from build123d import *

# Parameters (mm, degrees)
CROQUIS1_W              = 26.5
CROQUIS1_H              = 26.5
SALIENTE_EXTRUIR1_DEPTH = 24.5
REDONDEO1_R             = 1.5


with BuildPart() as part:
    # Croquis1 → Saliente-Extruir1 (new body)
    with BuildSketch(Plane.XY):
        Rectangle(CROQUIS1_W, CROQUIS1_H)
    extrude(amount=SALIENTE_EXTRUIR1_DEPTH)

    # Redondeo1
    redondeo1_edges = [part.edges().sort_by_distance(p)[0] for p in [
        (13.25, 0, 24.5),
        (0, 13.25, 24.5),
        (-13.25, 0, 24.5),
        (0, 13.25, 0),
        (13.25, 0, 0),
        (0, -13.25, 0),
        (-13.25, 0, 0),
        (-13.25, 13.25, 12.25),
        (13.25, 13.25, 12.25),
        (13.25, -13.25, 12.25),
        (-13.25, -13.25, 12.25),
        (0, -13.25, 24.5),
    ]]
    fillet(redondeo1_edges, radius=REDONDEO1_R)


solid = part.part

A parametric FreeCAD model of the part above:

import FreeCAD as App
import Part
import Sketcher

V = App.Vector

doc = App.newDocument("Part")
body = doc.addObject("PartDesign::Body", "Body")

# Sketch on XY plane
sketch1 = body.newObject("Sketcher::SketchObject", "Sketch")
sketch1.AttachmentSupport = (doc.getObject("XY_Plane"), [""])
sketch1.MapMode = "FlatFace"
sketch1.addGeometry(Part.LineSegment(V(-13, 13, 0), V(-13, -13, 0)), False)
sketch1.addGeometry(Part.LineSegment(V(-13, -13, 0), V(13, -13, 0)), False)
sketch1.addGeometry(Part.LineSegment(V(13, -13, 0), V(13, 13, 0)), False)
sketch1.addGeometry(Part.LineSegment(V(13, 13, 0), V(-13, 13, 0)), False)
sketch1.addConstraint(Sketcher.Constraint("Coincident", 0, 2, 1, 1))
sketch1.addConstraint(Sketcher.Constraint("Coincident", 1, 2, 2, 1))
sketch1.addConstraint(Sketcher.Constraint("Coincident", 2, 2, 3, 1))
sketch1.addConstraint(Sketcher.Constraint("Coincident", 3, 2, 0, 1))
sketch1.addConstraint(Sketcher.Constraint("Vertical", 0))
sketch1.addConstraint(Sketcher.Constraint("Horizontal", 1))
sketch1.addConstraint(Sketcher.Constraint("Vertical", 2))
sketch1.addConstraint(Sketcher.Constraint("Horizontal", 3))
sketch1.addConstraint(Sketcher.Constraint("Symmetric", 0, 2, 2, 2, -1, 1))
sketch1.addConstraint(Sketcher.Constraint("Equal", 3, 0))
sketch1.addConstraint(Sketcher.Constraint("DistanceX", 1, 1, 1, 2, 26.5))
pad1 = body.newObject("PartDesign::Pad", "Pad")
pad1.Profile = sketch1
pad1.Length = 24.5
doc.recompute()

fillet = body.newObject("PartDesign::Fillet", "Fillet")
fillet.Base = (pad1, ["Edge1"])
fillet.UseAllEdges = True
fillet.Radius = 1.5

doc.recompute()
